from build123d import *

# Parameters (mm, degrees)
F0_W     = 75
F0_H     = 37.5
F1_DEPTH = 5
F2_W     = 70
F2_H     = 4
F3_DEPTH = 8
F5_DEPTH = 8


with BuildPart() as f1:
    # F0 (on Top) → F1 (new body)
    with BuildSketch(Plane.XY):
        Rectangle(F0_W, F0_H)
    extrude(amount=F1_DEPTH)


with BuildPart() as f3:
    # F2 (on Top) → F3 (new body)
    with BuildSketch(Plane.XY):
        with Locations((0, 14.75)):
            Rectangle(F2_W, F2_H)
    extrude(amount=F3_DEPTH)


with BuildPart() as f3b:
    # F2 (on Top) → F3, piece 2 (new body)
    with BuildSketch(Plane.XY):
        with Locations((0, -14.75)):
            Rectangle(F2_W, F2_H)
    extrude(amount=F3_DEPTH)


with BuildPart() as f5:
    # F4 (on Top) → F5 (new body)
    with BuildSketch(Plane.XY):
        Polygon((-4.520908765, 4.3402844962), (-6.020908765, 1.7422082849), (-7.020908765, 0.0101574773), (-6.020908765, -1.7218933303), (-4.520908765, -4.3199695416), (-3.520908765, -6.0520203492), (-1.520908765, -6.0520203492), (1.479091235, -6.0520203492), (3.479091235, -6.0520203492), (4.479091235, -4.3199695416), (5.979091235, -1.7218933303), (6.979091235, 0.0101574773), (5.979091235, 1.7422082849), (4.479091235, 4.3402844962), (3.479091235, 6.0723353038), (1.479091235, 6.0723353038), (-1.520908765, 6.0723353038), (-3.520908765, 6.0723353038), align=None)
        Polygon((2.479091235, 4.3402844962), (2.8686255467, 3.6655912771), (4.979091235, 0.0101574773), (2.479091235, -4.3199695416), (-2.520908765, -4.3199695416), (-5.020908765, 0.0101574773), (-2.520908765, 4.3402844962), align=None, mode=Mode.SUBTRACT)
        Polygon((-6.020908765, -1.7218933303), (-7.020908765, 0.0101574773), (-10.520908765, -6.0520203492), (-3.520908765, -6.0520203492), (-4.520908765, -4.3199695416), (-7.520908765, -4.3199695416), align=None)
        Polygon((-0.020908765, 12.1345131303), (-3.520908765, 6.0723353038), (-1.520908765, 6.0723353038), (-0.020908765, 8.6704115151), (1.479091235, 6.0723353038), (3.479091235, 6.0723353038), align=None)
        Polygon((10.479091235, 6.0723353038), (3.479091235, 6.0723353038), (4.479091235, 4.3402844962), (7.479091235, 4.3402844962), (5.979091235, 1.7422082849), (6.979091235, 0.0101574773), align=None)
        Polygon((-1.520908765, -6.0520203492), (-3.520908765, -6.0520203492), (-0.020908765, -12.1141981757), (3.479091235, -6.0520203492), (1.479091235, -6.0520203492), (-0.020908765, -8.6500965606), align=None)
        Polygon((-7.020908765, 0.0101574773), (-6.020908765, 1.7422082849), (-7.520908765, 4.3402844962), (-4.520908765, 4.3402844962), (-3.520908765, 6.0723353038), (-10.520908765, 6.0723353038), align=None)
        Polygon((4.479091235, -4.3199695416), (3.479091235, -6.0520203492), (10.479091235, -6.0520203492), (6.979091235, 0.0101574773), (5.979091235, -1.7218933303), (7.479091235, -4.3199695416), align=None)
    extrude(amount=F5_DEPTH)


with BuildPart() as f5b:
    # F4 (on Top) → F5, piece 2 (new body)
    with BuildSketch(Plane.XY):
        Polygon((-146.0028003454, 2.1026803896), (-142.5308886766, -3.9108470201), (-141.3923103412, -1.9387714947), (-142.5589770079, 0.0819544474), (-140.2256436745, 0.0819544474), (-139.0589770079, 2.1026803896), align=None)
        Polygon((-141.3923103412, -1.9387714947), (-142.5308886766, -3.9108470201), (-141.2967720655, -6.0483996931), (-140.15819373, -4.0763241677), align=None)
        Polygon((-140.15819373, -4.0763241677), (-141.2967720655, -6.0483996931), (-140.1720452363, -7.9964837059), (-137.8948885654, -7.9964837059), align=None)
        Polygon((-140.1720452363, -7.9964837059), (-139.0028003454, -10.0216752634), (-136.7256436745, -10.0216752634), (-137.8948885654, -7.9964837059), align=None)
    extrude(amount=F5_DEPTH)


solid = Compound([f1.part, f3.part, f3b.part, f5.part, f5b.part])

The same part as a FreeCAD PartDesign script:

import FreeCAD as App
import Part
import Sketcher

V = App.Vector
Q = App.Units.Quantity


def add_polygon(sketch, points):
    """Adds a closed chain of lines whose ends are joined by coincident constraints."""
    first, n = sketch.GeometryCount, len(points)
    for a, b in zip(points, points[1:] + points[:1]):
        sketch.addGeometry(Part.LineSegment(App.Vector(*a, 0), App.Vector(*b, 0)), False)
    for i in range(n):
        sketch.addConstraint(Sketcher.Constraint("Coincident", first + i, 2, first + (i + 1) % n, 1))

doc = App.newDocument("Part")
body = doc.addObject("PartDesign::Body", "Body")

# Sketch on XY plane
sketch1 = body.newObject("Sketcher::SketchObject", "Sketch")
sketch1.AttachmentSupport = (doc.getObject("XY_Plane"), [""])
sketch1.MapMode = "FlatFace"
add_polygon(sketch1, [(-38, 19), (-38, -19), (38, -19), (38, 19)])  # lines 0-3
sketch1.addConstraint(Sketcher.Constraint("Vertical", 0))
sketch1.addConstraint(Sketcher.Constraint("Horizontal", 1))
sketch1.addConstraint(Sketcher.Constraint("Vertical", 2))
sketch1.addConstraint(Sketcher.Constraint("Horizontal", 3))
sketch1.addConstraint(Sketcher.Constraint("Symmetric", 0, 2, 2, 2, -1, 1))
sketch1.addConstraint(Sketcher.Constraint("DistanceX", 1, 1, 1, 2, Q("75 mm")))
sketch1.addConstraint(Sketcher.Constraint("DistanceY", 0, 2, 0, 1, Q("37.5 mm")))
pad1 = body.newObject("PartDesign::Pad", "Pad")
pad1.Profile = sketch1
pad1.Length = 5
body2 = doc.addObject("PartDesign::Body", "Body001")

# Sketch on XY plane
sketch2 = body2.newObject("Sketcher::SketchObject", "Sketch001")
sketch2.AttachmentSupport = (doc.getObject("XY_Plane001"), [""])
sketch2.MapMode = "FlatFace"
add_polygon(sketch2, [(-35, 16.8), (-35, 12.8), (35, 12.8), (35, 16.8)])  # lines 0-3
sketch2.addConstraint(Sketcher.Constraint("Vertical", 0))
sketch2.addConstraint(Sketcher.Constraint("Horizontal", 1))
sketch2.addConstraint(Sketcher.Constraint("Vertical", 2))
sketch2.addConstraint(Sketcher.Constraint("Horizontal", 3))
sketch2.addConstraint(Sketcher.Constraint("DistanceX", 1, 1, 1, 2, Q("70 mm")))
sketch2.addConstraint(Sketcher.Constraint("DistanceY", 0, 2, 0, 1, Q("4 mm")))
sketch2.addConstraint(Sketcher.Constraint("DistanceX", 0, 2, -1, 1, Q("35 mm")))
sketch2.addConstraint(Sketcher.Constraint("DistanceY", -1, 1, 0, 2, Q("12.75 mm")))
pad2 = body2.newObject("PartDesign::Pad", "Pad001")
pad2.Profile = sketch2
pad2.Length = 8
body3 = doc.addObject("PartDesign::Body", "Body002")

# Sketch on XY plane
sketch3 = body3.newObject("Sketcher::SketchObject", "Sketch002")
sketch3.AttachmentSupport = (doc.getObject("XY_Plane002"), [""])
sketch3.MapMode = "FlatFace"
add_polygon(sketch3, [(-35, -12.8), (-35, -16.8), (35, -16.8), (35, -12.8)])  # lines 0-3
sketch3.addConstraint(Sketcher.Constraint("Vertical", 0))
sketch3.addConstraint(Sketcher.Constraint("Horizontal", 1))
sketch3.addConstraint(Sketcher.Constraint("Vertical", 2))
sketch3.addConstraint(Sketcher.Constraint("Horizontal", 3))
sketch3.addConstraint(Sketcher.Constraint("DistanceX", 1, 1, 1, 2, Q("70 mm")))
sketch3.addConstraint(Sketcher.Constraint("DistanceY", 0, 2, 0, 1, Q("4 mm")))
sketch3.addConstraint(Sketcher.Constraint("DistanceX", 0, 2, -1, 1, Q("35 mm")))
sketch3.addConstraint(Sketcher.Constraint("DistanceY", 0, 2, -1, 1, Q("16.75 mm")))
pad3 = body3.newObject("PartDesign::Pad", "Pad002")
pad3.Profile = sketch3
pad3.Length = 8
body4 = doc.addObject("PartDesign::Body", "Body003")

# Sketch on XY plane
sketch4 = body4.newObject("Sketcher::SketchObject", "Sketch003")
sketch4.AttachmentSupport = (doc.getObject("XY_Plane003"), [""])
sketch4.MapMode = "FlatFace"
add_polygon(sketch4, [(7, 0), (10.5, 6.1), (3.5, 6.1), (0, 12.1), (-3.5, 6.1), (-10.5, 6.1), (-7, 0), (-10.5, -6.1), (-3.5, -6.1), (0, -12.1), (3.5, -6.1), (10.5, -6.1)])  # lines 0-11
add_polygon(sketch4, [(4.5, -4.3), (6, -1.7), (7.5, -4.3)])  # lines 12-14
add_polygon(sketch4, [(-4.5, 4.3), (-6, 1.7), (-7.5, 4.3)])  # lines 15-17
add_polygon(sketch4, [(-1.5, -6.1), (1.5, -6.1), (0, -8.7)])  # lines 18-20
add_polygon(sketch4, [(-6, -1.7), (-4.5, -4.3), (-7.5, -4.3)])  # lines 21-23
add_polygon(sketch4, [(-2.5, 4.3), (2.5, 4.3), (2.9, 3.7), (5, 0), (2.5, -4.3), (-2.5, -4.3), (-5, 0)])  # lines 24-30
add_polygon(sketch4, [(6, 1.7), (4.5, 4.3), (7.5, 4.3)])  # lines 31-33
add_polygon(sketch4, [(1.5, 6.1), (-1.5, 6.1), (0, 8.7)])  # lines 34-36
sketch4.addConstraint(Sketcher.Constraint("Horizontal", 1))
sketch4.addConstraint(Sketcher.Constraint("Horizontal", 4))
sketch4.addConstraint(Sketcher.Constraint("Horizontal", 7))
sketch4.addConstraint(Sketcher.Constraint("Horizontal", 10))
sketch4.addConstraint(Sketcher.Constraint("Horizontal", 14))
sketch4.addConstraint(Sketcher.Constraint("Horizontal", 17))
sketch4.addConstraint(Sketcher.Constraint("Horizontal", 18))
sketch4.addConstraint(Sketcher.Constraint("Horizontal", 22))
sketch4.addConstraint(Sketcher.Constraint("Horizontal", 24))
sketch4.addConstraint(Sketcher.Constraint("Horizontal", 28))
sketch4.addConstraint(Sketcher.Constraint("Horizontal", 32))
sketch4.addConstraint(Sketcher.Constraint("Horizontal", 34))
sketch4.addConstraint(Sketcher.Constraint("Parallel", 0, 3))
sketch4.addConstraint(Sketcher.Constraint("Parallel", 2, 5))
sketch4.addConstraint(Sketcher.Constraint("Parallel", 3, 6))
sketch4.addConstraint(Sketcher.Constraint("Parallel", 5, 8))
sketch4.addConstraint(Sketcher.Constraint("Parallel", 6, 9))
sketch4.addConstraint(Sketcher.Constraint("Parallel", 8, 11))
sketch4.addConstraint(Sketcher.Constraint("Parallel", 9, 12))
sketch4.addConstraint(Sketcher.Constraint("Parallel", 11, 13))
sketch4.addConstraint(Sketcher.Constraint("Parallel", 12, 15))
sketch4.addConstraint(Sketcher.Constraint("Parallel", 13, 16))
sketch4.addConstraint(Sketcher.Constraint("Parallel", 15, 19))
sketch4.addConstraint(Sketcher.Constraint("Parallel", 16, 20))
sketch4.addConstraint(Sketcher.Constraint("Parallel", 20, 21))
sketch4.addConstraint(Sketcher.Constraint("Parallel", 19, 23))
sketch4.addConstraint(Sketcher.Constraint("Parallel", 21, 25))
sketch4.addConstraint(Sketcher.Constraint("Parallel", 25, 26))
sketch4.addConstraint(Sketcher.Constraint("Parallel", 23, 27))
sketch4.addConstraint(Sketcher.Constraint("Parallel", 26, 29))
sketch4.addConstraint(Sketcher.Constraint("Parallel", 27, 30))
sketch4.addConstraint(Sketcher.Constraint("Parallel", 29, 31))
sketch4.addConstraint(Sketcher.Constraint("Parallel", 30, 33))
sketch4.addConstraint(Sketcher.Constraint("Parallel", 33, 35))
sketch4.addConstraint(Sketcher.Constraint("Parallel", 31, 36))
sketch4.addConstraint(Sketcher.Constraint("Horizontal", 1, 2, 3, 2))
sketch4.addConstraint(Sketcher.Constraint("Horizontal", 7, 2, 9, 2))
sketch4.addConstraint(Sketcher.Constraint("Horizontal", 5, 2, 11, 2))
sketch4.addConstraint(Sketcher.Constraint("Horizontal", 10, 2, 18, 2))
sketch4.addConstraint(Sketcher.Constraint("Horizontal", 14, 2, 21, 2))
sketch4.addConstraint(Sketcher.Constraint("Horizontal", 12, 2, 23, 2))
sketch4.addConstraint(Sketcher.Constraint("Horizontal", 17, 2, 24, 2))
sketch4.addConstraint(Sketcher.Constraint("Horizontal", 11, 2, 26, 2))
sketch4.addConstraint(Sketcher.Constraint("Horizontal", 22, 2, 27, 2))
sketch4.addConstraint(Sketcher.Constraint("Horizontal", 26, 2, 29, 2))
sketch4.addConstraint(Sketcher.Constraint("Horizontal", 30, 2, 31, 2))
sketch4.addConstraint(Sketcher.Constraint("Horizontal", 15, 2, 33, 2))
sketch4.addConstraint(Sketcher.Constraint("Horizontal", 4, 2, 34, 2))
sketch4.addConstraint(Sketcher.Constraint("Vertical", 4, 2, 6, 2))
sketch4.addConstraint(Sketcher.Constraint("Vertical", 3, 2, 7, 2))
sketch4.addConstraint(Sketcher.Constraint("Vertical", 2, 2, 8, 2))
sketch4.addConstraint(Sketcher.Constraint("Vertical", 1, 2, 9, 2))
sketch4.addConstraint(Sketcher.Constraint("Vertical", 8, 2, 19, 2))
sketch4.addConstraint(Sketcher.Constraint("Vertical", 17, 2, 21, 2))
sketch4.addConstraint(Sketcher.Constraint("Vertical", 16, 2, 22, 2))
sketch4.addConstraint(Sketcher.Constraint("Vertical", 24, 2, 27, 2))
sketch4.addConstraint(Sketcher.Constraint("Vertical", 14, 2, 31, 2))
sketch4.addConstraint(Sketcher.Constraint("Vertical", 20, 2, 34, 2))
sketch4.addConstraint(Sketcher.Constraint("Vertical", 19, 2, 35, 2))
sketch4.addConstraint(Sketcher.Constraint("Equal", 1, 4))
sketch4.addConstraint(Sketcher.Constraint("Equal", 17, 18))
sketch4.addConstraint(Sketcher.Constraint("Equal", 0, 2))
sketch4.addConstraint(Sketcher.Constraint("DistanceX", 1, 2, 1, 1, Q("7 mm")))
sketch4.addConstraint(Sketcher.Constraint("DistanceX", 14, 2, 14, 1, Q("3 mm")))
sketch4.addConstraint(Sketcher.Constraint("DistanceX", 24, 1, 24, 2, Q("5 mm")))
sketch4.addConstraint(Sketcher.Constraint("Angle", 0, Q("60 deg")))
sketch4.addConstraint(Sketcher.Constraint("Distance", 0, Q("7 mm")))
sketch4.addConstraint(Sketcher.Constraint("Distance", 27, Q("5 mm")))
sketch4.addConstraint(Sketcher.Constraint("DistanceX", 12, 2, 11, 2, Q("1 mm")))
sketch4.addConstraint(Sketcher.Constraint("DistanceX", 5, 2, 15, 2, Q("1 mm")))
sketch4.addConstraint(Sketcher.Constraint("DistanceX", 24, 2, 1, 2, Q("1 mm")))
sketch4.addConstraint(Sketcher.Constraint("DistanceY", 8, 2, -1, 1, Q("12.114198 mm")))
sketch4.addConstraint(Sketcher.Constraint("Distance", 25, Q("0.779069 mm")))
sketch4.addConstraint(Sketcher.Constraint("DistanceX", -1, 1, 0, 2, Q("10.479091 mm")))
pad4 = body4.newObject("PartDesign::Pad", "Pad003")
pad4.Profile = sketch4
pad4.Length = 8
body5 = doc.addObject("PartDesign::Body", "Body004")

# Sketch on XY plane
sketch5 = body5.newObject("Sketcher::SketchObject", "Sketch004")
sketch5.AttachmentSupport = (doc.getObject("XY_Plane004"), [""])
sketch5.MapMode = "FlatFace"
add_polygon(sketch5, [(-146, 2.1), (-142.5, -3.9), (-141.3, -6), (-140.2, -8), (-139, -10), (-136.7, -10), (-137.9, -8), (-140.2, -4.1), (-141.4, -1.9), (-142.6, 0.1), (-140.2, 0.1), (-139.1, 2.1)])  # lines 0-11
sketch5.addConstraint(Sketcher.Constraint("Horizontal", 4))
sketch5.addConstraint(Sketcher.Constraint("Horizontal", 9))
sketch5.addConstraint(Sketcher.Constraint("Horizontal", 11))
sketch5.addConstraint(Sketcher.Constraint("Parallel", 0, 1))
sketch5.addConstraint(Sketcher.Constraint("Parallel", 1, 2))
sketch5.addConstraint(Sketcher.Constraint("Parallel", 2, 3))
sketch5.addConstraint(Sketcher.Constraint("Parallel", 3, 5))
sketch5.addConstraint(Sketcher.Constraint("Parallel", 5, 6))
sketch5.addConstraint(Sketcher.Constraint("Parallel", 6, 7))
sketch5.addConstraint(Sketcher.Constraint("Parallel", 7, 8))
sketch5.addConstraint(Sketcher.Constraint("Horizontal", 2, 2, 5, 2))
sketch5.addConstraint(Sketcher.Constraint("Equal", 1, 7))
sketch5.addConstraint(Sketcher.Constraint("Equal", 8, 10))
sketch5.addConstraint(Sketcher.Constraint("Angle", 0, Q("-60 deg")))
sketch5.addConstraint(Sketcher.Constraint("Angle", 10, Q("60 deg")))
sketch5.addConstraint(Sketcher.Constraint("DistanceX", 8, 2, 10, 2, Q("3.5 mm")))
sketch5.addConstraint(Sketcher.Constraint("DistanceX", 0, 2, 5, 2, Q("4.636 mm")))
sketch5.addConstraint(Sketcher.Constraint("DistanceY", 1, 2, -1, 1, Q("6.0484 mm")))
sketch5.addConstraint(Sketcher.Constraint("DistanceX", 3, 2, -1, 1, Q("139.0028 mm")))
sketch5.addConstraint(Sketcher.Constraint("DistanceX", 11, 2, -1, 1, Q("146.0028 mm")))
sketch5.addConstraint(Sketcher.Constraint("DistanceX", 2, 2, 4, 2, Q("3.446402 mm")))
sketch5.addConstraint(Sketcher.Constraint("DistanceY", 0, 2, 8, 2, Q("3.992801 mm")))
sketch5.addConstraint(Sketcher.Constraint("Distance", 3, Q("2.33849 mm")))
sketch5.addConstraint(Sketcher.Constraint("Distance", 6, Q("4.52661 mm")))
pad5 = body5.newObject("PartDesign::Pad", "Pad004")
pad5.Profile = sketch5
pad5.Length = 8

doc.recompute()
